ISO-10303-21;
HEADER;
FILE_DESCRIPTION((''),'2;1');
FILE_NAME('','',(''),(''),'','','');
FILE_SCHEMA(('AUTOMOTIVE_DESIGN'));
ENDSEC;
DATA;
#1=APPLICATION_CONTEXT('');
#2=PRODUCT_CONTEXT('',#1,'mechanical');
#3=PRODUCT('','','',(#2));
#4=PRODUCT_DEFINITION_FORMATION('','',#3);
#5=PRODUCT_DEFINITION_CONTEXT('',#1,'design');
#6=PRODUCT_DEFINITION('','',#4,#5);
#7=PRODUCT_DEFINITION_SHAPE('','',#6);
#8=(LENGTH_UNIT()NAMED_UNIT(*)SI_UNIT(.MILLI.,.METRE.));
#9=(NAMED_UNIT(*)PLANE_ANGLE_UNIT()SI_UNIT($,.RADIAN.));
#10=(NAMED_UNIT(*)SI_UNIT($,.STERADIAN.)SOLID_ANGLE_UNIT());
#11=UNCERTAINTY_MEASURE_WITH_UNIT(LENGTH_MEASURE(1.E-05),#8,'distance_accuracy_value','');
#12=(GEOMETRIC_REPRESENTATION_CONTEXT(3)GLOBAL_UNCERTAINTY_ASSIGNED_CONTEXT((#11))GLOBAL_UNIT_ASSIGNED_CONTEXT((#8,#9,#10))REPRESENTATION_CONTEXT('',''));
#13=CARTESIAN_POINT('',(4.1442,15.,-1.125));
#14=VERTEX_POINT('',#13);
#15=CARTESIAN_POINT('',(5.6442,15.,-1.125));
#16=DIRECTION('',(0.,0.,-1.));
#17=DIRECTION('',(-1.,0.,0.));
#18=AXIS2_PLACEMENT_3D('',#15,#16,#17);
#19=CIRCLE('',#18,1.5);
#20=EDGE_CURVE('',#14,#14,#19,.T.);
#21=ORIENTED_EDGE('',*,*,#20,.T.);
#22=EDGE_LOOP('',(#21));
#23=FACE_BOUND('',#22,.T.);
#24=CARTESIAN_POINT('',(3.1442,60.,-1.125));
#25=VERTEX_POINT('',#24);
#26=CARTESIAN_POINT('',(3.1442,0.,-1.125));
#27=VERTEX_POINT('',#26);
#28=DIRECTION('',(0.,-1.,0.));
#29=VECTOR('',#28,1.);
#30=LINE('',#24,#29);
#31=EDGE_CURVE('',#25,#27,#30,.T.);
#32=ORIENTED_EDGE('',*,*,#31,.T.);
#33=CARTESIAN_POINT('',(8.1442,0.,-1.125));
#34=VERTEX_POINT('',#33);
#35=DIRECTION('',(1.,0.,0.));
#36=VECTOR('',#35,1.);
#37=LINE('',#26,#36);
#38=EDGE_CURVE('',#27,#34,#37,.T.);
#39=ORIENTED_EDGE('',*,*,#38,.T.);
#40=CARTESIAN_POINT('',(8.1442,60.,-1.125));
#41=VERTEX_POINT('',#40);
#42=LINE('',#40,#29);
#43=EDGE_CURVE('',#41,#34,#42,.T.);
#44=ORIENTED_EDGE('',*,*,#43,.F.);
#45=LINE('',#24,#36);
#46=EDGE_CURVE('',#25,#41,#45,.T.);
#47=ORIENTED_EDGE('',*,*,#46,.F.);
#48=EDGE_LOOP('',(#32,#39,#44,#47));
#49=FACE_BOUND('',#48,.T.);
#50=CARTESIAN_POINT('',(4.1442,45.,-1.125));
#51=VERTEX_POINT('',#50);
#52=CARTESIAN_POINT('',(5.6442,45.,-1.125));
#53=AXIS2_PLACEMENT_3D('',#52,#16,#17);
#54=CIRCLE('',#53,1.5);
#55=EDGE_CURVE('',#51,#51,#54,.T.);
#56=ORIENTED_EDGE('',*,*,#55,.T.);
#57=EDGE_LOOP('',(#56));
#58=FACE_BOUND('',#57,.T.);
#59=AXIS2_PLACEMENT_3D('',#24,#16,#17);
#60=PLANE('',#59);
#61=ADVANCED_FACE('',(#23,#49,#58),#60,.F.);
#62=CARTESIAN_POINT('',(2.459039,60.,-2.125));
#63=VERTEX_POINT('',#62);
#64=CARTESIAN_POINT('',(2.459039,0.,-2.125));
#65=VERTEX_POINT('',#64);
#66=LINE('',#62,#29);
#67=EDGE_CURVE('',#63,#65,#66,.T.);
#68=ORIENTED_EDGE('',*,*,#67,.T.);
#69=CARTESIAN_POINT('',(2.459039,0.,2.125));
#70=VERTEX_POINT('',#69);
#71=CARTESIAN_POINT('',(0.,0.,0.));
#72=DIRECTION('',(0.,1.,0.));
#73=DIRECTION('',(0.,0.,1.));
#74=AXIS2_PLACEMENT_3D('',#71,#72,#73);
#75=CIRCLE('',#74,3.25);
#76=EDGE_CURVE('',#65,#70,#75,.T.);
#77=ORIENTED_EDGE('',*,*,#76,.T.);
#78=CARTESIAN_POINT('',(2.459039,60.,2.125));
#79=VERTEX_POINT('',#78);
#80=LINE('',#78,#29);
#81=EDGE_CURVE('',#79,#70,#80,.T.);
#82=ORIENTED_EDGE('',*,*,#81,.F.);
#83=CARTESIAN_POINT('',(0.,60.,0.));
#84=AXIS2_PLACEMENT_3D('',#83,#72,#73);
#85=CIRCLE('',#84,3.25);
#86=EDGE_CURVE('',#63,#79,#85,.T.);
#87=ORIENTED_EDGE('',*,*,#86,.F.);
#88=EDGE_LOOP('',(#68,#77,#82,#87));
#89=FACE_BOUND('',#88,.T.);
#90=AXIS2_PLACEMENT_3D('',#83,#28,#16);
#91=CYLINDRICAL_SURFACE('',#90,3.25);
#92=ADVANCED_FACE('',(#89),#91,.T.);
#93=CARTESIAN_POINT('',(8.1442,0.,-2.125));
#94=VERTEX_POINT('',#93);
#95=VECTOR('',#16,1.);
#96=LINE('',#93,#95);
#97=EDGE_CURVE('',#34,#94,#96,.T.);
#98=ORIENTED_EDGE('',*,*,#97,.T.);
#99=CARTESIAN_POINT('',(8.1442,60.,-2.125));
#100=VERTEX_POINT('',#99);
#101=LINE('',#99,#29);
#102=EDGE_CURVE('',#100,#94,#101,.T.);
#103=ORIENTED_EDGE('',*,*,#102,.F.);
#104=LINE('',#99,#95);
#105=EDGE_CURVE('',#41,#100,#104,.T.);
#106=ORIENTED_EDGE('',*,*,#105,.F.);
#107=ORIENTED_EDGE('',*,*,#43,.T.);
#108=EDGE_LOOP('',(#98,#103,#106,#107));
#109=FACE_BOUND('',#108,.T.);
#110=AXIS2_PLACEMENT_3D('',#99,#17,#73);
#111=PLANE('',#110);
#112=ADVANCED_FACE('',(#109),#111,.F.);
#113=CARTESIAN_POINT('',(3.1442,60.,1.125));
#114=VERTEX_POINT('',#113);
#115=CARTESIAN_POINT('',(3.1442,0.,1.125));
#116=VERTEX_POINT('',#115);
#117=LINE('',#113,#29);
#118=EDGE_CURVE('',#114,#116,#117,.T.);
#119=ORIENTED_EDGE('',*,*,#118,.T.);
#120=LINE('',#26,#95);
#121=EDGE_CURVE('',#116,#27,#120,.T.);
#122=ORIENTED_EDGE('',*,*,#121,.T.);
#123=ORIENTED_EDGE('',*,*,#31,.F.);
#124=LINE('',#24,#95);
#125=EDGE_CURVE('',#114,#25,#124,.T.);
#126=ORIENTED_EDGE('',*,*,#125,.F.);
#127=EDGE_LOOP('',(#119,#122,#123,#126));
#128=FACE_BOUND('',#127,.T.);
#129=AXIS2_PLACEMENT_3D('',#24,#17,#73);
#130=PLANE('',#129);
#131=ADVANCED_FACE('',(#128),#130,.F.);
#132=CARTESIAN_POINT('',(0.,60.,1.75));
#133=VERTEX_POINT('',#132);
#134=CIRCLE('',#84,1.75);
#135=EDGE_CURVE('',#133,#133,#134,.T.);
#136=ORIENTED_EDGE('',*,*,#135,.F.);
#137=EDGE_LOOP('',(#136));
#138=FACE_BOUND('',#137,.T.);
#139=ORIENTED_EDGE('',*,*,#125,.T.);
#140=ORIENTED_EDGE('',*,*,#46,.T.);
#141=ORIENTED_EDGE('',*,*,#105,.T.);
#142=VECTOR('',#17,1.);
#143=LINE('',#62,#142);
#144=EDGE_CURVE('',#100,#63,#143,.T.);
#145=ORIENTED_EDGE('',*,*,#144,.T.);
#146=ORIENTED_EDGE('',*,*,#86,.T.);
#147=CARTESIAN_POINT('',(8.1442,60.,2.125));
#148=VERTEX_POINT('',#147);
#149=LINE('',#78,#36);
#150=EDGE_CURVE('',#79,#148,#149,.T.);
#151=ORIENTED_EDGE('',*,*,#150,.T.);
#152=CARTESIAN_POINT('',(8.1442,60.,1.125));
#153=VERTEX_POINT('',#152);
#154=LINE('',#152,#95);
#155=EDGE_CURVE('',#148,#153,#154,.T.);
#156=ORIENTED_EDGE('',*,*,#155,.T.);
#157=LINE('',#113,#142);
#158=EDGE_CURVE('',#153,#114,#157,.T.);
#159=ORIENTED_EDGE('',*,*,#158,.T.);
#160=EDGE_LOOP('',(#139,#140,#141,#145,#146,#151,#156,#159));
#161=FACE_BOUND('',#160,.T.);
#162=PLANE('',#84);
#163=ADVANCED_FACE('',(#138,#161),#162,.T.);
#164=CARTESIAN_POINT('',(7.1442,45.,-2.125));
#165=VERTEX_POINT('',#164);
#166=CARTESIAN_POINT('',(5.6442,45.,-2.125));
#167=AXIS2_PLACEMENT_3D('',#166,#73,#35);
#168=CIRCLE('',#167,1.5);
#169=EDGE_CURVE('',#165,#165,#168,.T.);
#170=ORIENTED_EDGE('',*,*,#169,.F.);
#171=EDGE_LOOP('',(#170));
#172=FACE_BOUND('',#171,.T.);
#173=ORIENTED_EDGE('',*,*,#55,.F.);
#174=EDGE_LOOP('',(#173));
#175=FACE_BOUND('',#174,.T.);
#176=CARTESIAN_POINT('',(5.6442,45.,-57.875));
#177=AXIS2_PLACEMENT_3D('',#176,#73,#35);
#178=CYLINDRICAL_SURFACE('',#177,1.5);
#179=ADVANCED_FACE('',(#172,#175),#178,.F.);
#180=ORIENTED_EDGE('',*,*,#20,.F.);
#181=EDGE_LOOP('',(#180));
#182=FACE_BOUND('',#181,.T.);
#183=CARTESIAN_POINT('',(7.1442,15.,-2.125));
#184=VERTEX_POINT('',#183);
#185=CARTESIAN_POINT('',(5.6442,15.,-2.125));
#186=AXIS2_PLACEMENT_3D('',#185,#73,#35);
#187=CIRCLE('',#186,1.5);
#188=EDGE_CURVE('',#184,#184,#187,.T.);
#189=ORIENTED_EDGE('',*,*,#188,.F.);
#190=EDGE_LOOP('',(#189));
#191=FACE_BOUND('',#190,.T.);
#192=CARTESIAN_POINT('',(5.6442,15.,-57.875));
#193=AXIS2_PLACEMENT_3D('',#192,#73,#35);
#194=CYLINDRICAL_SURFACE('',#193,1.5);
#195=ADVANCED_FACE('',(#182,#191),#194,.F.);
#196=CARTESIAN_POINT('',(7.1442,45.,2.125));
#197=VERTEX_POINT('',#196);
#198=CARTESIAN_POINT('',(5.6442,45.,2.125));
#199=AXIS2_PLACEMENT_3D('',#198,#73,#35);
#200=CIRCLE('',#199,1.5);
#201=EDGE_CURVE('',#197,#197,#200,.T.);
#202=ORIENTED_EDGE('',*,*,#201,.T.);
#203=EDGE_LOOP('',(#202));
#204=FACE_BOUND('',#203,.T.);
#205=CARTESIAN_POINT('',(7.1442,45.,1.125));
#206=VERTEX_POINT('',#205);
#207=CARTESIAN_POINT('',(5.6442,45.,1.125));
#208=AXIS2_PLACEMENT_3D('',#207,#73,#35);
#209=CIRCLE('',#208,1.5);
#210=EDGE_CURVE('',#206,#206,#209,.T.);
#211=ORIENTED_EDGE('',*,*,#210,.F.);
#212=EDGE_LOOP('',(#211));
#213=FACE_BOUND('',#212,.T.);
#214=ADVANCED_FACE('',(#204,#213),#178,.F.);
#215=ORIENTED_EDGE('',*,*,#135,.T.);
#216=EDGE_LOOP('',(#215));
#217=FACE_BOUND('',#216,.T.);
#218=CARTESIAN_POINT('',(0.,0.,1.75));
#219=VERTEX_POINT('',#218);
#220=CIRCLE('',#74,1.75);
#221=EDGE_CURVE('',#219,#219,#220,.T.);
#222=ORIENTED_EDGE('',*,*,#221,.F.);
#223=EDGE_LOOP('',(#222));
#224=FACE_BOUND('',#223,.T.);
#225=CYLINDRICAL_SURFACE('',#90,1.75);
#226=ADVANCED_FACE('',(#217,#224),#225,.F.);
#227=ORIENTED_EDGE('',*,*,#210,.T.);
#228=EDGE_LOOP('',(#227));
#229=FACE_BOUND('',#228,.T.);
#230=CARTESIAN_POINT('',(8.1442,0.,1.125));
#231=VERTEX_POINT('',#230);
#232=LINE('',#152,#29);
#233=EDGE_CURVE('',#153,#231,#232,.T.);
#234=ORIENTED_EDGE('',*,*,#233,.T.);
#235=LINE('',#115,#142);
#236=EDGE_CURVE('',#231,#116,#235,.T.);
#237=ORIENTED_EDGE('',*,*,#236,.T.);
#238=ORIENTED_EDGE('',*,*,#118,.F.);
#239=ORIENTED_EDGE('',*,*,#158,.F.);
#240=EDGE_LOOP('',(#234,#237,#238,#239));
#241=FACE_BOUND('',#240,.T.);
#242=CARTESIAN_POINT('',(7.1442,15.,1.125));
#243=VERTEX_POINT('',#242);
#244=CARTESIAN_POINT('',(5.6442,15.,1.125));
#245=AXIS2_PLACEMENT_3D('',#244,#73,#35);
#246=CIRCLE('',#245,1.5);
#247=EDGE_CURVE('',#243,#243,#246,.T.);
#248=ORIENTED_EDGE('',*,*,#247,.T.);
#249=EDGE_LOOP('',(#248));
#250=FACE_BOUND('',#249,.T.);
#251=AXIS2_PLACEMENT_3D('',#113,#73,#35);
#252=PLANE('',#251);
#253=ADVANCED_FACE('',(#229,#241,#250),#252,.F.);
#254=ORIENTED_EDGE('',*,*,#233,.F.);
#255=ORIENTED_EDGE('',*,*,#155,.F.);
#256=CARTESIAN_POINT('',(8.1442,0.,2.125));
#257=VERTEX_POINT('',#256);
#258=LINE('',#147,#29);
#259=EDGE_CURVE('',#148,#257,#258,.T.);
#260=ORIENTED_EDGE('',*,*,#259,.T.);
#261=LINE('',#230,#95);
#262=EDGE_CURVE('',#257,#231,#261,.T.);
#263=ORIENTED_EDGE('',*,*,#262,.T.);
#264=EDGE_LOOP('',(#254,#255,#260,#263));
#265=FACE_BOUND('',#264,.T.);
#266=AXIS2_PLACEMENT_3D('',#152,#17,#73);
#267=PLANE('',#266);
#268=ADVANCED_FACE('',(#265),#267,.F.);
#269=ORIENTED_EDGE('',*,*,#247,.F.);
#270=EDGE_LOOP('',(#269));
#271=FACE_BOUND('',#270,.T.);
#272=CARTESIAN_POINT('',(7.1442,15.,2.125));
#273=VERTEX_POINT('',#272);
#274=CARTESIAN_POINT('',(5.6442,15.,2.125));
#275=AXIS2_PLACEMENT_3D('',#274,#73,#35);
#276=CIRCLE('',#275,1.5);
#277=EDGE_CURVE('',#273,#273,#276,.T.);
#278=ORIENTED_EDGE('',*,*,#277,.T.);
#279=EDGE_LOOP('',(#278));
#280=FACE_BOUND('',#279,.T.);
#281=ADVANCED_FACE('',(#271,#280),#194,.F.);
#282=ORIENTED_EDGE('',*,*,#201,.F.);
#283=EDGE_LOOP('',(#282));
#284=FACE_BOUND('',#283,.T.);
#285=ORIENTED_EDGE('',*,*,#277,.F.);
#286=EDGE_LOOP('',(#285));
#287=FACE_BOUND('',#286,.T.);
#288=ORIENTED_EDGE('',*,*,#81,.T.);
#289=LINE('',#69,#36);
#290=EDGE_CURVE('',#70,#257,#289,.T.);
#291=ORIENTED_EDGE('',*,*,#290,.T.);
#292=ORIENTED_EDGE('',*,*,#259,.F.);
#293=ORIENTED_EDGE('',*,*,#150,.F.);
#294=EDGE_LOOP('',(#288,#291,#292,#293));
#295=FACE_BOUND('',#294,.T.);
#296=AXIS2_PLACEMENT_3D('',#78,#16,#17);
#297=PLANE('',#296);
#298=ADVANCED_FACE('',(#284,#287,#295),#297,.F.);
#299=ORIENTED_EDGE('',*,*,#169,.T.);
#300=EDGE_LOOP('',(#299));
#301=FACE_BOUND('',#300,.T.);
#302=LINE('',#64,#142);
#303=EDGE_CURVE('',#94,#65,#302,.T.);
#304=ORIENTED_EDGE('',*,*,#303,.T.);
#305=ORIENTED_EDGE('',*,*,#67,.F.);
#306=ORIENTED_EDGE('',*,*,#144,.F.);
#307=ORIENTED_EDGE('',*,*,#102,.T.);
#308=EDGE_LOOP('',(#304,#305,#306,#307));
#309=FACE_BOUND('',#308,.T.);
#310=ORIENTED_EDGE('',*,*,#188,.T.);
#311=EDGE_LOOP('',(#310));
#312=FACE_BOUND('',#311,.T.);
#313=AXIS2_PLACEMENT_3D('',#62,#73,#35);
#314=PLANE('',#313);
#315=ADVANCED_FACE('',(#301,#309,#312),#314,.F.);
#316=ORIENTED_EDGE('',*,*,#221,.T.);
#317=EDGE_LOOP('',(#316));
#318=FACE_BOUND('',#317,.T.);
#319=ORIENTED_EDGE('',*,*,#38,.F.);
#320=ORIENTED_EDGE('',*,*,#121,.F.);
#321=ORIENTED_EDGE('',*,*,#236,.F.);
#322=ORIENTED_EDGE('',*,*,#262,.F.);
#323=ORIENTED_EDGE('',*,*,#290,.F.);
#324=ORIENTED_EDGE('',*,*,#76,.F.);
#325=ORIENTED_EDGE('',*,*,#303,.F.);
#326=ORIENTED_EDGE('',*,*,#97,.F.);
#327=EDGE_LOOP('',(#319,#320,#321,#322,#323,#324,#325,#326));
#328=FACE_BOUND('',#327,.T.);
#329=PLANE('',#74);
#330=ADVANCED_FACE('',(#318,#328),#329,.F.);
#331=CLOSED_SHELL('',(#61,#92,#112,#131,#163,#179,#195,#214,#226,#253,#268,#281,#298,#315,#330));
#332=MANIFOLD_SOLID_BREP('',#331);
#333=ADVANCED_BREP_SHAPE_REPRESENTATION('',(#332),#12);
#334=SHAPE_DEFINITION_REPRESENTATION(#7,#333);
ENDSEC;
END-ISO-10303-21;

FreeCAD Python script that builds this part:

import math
import FreeCAD as App
import Part
import Sketcher

V = App.Vector
Q = App.Units.Quantity

doc = App.newDocument("Part")
body = doc.addObject("PartDesign::Body", "Body")

sketch1 = body.newObject("Sketcher::SketchObject", "Sketch")
sketch1.AttachmentSupport = (doc.getObject("XZ_Plane"), [""])
sketch1.MapMode = "FlatFace"
sketch1.addGeometry([
    Part.LineSegment(V(8.1, 2.1, 0), V(8.1, 1.1, 0)),
    Part.LineSegment(V(8.1, 1.1, 0), V(3.1, 1.1, 0)),
    Part.LineSegment(V(3.1, 1.1, 0), V(3.1, -1.1, 0)),
    Part.LineSegment(V(3.1, -1.1, 0), V(8.1, -1.1, 0)),
    Part.LineSegment(V(8.1, -1.1, 0), V(8.1, -2.1, 0)),
    Part.LineSegment(V(8.1, -2.1, 0), V(2.5, -2.1, 0)),
    Part.ArcOfCircle(Part.Circle(V(0, 0, 0), V(0, 0, 1), 3.2), math.radians(41), math.radians(319)),
    Part.LineSegment(V(2.5, 2.1, 0), V(8.1, 2.1, 0)),
    Part.Circle(V(0, 0, 0), V(0, 0, 1), 1.8),
], False)
sketch1.addConstraint([
    Sketcher.Constraint("Coincident", 0, 2, 1, 1),
    Sketcher.Constraint("Coincident", 1, 2, 2, 1),
    Sketcher.Constraint("Coincident", 2, 2, 3, 1),
    Sketcher.Constraint("Coincident", 3, 2, 4, 1),
    Sketcher.Constraint("Coincident", 4, 2, 5, 1),
    Sketcher.Constraint("Coincident", 5, 2, 6, 2),
    Sketcher.Constraint("Coincident", 6, 1, 7, 1),
    Sketcher.Constraint("Coincident", 7, 2, 0, 1),
    Sketcher.Constraint("Vertical", 0),
    Sketcher.Constraint("Horizontal", 1),
    Sketcher.Constraint("Vertical", 2),
    Sketcher.Constraint("Horizontal", 3),
    Sketcher.Constraint("Vertical", 4),
    Sketcher.Constraint("Horizontal", 5),
    Sketcher.Constraint("Horizontal", 7),
    Sketcher.Constraint("Coincident", 6, 3, -1, 1),
    Sketcher.Constraint("Coincident", 8, 3, -1, 1),
    Sketcher.Constraint("Symmetric", 0, 2, 3, 2, -1),
    Sketcher.Constraint("Vertical", 5, 2, 6, 1),
    Sketcher.Constraint("Diameter", 8, Q("3.5 mm")),
    Sketcher.Constraint("DistanceX", 1, 2, 1, 1, Q("5 mm")),
    Sketcher.Constraint("DistanceY", 0, 2, 0, 1, Q("1 mm")),
    Sketcher.Constraint("Radius", 6, Q("3.25 mm")),
    Sketcher.Constraint("DistanceY", 2, 2, 2, 1, Q("2.25 mm")),
    Sketcher.Constraint("DistanceX", 5, 2, 5, 1, Q("5.685161 mm")),
])
pad1 = body.newObject("PartDesign::Pad", "Pad")
pad1.Profile = sketch1
pad1.Length = 60
pad1.Reversed = True

sketch2 = body.newObject("Sketcher::SketchObject", "Sketch001")
sketch2.AttachmentSupport = (doc.getObject("XY_Plane"), [""])
sketch2.MapMode = "FlatFace"
sketch2.AttachmentOffset = App.Placement(V(0, 0, 2.125), App.Rotation())
sketch2.addGeometry([
    Part.Circle(V(5.6, 45, 0), V(0, 0, 1), 1.5),
    Part.Circle(V(5.6, 15, 0), V(0, 0, 1), 1.5),
], False)
sketch2.addConstraint([
    Sketcher.Constraint("Equal", 0, 1),
    Sketcher.Constraint("Vertical", 0, 3, 1, 3),
    Sketcher.Constraint("Diameter", 0, Q("3 mm")),
    Sketcher.Constraint("DistanceY", -1, 1, 0, 3, Q("45 mm")),
    Sketcher.Constraint("DistanceY", -1, 1, 1, 3, Q("15 mm")),
    Sketcher.Constraint("DistanceX", -1, 1, 0, 3, Q("5.6442 mm")),
])
pocket1 = body.newObject("PartDesign::Pocket", "Pocket")
pocket1.Profile = sketch2
pocket1.Length = 60

doc.recompute()
